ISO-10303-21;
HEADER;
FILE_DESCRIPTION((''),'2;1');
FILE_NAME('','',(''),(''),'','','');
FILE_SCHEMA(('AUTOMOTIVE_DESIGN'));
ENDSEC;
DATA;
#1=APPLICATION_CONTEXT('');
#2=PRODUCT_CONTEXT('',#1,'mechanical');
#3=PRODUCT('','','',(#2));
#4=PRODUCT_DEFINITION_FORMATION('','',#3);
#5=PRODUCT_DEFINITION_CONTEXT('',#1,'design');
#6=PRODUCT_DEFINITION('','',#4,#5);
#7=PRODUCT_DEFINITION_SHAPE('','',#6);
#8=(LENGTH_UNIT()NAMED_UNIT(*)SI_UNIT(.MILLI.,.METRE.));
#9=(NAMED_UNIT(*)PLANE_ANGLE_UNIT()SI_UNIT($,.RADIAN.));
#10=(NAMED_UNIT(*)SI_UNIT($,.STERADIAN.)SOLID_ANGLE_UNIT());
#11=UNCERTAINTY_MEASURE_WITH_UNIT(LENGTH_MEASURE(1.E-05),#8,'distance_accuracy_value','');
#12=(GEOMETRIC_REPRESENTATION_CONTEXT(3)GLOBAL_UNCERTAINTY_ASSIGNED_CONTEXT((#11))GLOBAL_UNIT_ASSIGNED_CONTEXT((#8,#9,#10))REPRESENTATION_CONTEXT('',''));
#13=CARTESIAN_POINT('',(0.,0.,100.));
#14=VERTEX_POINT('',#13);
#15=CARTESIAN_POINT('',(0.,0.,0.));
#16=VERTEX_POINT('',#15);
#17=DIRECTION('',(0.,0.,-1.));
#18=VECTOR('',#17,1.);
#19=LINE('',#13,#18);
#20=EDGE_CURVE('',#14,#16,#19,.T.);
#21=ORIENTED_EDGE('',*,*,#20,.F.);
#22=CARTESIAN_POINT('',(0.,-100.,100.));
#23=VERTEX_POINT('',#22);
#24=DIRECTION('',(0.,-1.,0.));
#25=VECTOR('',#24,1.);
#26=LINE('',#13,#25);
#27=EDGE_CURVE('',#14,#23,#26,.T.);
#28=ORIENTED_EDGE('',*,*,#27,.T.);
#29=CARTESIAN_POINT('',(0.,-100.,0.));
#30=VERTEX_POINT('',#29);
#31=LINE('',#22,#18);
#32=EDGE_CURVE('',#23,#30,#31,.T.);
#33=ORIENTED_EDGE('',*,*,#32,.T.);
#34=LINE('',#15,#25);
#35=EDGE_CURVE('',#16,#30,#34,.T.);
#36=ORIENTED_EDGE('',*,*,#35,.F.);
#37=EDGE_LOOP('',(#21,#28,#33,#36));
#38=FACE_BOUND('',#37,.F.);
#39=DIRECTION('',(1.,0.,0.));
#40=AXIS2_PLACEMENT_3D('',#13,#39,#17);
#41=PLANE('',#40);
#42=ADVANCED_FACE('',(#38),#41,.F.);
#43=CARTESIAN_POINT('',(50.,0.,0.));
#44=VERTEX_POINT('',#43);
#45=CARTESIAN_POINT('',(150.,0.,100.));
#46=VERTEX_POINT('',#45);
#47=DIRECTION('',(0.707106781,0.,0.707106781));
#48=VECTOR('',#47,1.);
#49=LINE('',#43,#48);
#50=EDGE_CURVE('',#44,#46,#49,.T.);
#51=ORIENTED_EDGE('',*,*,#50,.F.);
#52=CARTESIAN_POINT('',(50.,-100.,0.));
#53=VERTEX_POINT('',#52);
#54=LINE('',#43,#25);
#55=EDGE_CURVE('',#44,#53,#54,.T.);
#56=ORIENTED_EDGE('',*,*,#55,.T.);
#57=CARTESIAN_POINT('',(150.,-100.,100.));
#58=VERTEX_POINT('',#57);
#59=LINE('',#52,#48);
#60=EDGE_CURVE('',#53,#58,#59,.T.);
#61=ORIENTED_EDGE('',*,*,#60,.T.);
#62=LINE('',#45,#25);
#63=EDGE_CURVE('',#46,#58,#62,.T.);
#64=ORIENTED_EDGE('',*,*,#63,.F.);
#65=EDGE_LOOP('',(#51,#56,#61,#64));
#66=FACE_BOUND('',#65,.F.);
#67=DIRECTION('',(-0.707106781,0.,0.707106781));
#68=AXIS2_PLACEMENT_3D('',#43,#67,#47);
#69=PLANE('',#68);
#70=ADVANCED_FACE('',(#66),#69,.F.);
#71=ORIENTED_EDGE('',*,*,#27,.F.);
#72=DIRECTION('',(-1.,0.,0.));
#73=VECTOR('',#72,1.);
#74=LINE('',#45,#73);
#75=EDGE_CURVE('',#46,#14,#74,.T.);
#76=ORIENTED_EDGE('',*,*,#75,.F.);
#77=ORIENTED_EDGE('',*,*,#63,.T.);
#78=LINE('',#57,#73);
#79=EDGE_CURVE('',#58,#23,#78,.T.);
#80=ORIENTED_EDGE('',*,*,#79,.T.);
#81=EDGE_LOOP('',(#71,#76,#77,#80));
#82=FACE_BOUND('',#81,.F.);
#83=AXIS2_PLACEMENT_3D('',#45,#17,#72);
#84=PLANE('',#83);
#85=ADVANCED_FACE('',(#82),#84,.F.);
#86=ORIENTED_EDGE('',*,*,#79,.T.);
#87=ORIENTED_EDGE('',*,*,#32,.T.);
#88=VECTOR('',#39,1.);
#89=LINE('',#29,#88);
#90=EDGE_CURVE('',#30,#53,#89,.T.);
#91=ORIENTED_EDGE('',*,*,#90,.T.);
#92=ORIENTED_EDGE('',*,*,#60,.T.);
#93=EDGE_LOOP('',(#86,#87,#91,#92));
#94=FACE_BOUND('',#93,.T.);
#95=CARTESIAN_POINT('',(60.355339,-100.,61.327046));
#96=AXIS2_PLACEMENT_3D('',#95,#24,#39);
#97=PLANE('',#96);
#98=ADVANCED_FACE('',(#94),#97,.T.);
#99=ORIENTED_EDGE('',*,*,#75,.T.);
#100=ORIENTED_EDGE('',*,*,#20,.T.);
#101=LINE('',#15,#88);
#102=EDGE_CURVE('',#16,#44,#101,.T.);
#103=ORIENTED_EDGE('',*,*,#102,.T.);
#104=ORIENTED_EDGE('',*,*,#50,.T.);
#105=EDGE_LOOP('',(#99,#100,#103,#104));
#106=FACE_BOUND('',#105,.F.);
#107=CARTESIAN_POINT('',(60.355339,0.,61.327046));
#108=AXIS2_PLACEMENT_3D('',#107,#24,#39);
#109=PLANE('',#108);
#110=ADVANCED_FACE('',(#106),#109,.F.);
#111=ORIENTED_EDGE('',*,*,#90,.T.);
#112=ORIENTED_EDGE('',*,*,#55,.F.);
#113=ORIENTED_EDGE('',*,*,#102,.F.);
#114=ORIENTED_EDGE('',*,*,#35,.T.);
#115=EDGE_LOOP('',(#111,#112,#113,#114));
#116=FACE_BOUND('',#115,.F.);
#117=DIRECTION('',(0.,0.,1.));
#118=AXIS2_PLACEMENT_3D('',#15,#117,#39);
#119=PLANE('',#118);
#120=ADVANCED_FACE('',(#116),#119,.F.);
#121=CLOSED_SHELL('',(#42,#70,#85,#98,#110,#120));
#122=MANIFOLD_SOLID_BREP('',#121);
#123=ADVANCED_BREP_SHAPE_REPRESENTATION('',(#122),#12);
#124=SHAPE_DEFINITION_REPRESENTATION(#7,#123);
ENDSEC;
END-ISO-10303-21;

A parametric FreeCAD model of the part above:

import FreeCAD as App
import Part
import Sketcher
from FreeCAD import Vector
Q = App.Units.Quantity

doc = App.newDocument("Part")
body = doc.addObject("PartDesign::Body", "Body")

sketch1 = body.newObject("Sketcher::SketchObject", "Sketch")
sketch1.AttachmentSupport = (doc.getObject("XZ_Plane"), [""])
sketch1.MapMode = "FlatFace"
sketch1.addGeometry(Part.LineSegment(Vector(0, 100, 0), Vector(0, 0, 0)), False)
sketch1.addGeometry(Part.LineSegment(Vector(0, 0, 0), Vector(50, 0, 0)), False)
sketch1.addGeometry(Part.LineSegment(Vector(50, 0, 0), Vector(150, 100, 0)), False)
sketch1.addGeometry(Part.LineSegment(Vector(150, 100, 0), Vector(0, 100, 0)), False)
sketch1.addConstraint(Sketcher.Constraint("Coincident", 0, 2, 1, 1))
sketch1.addConstraint(Sketcher.Constraint("Coincident", 1, 2, 2, 1))
sketch1.addConstraint(Sketcher.Constraint("Coincident", 2, 2, 3, 1))
sketch1.addConstraint(Sketcher.Constraint("Coincident", 3, 2, 0, 1))
sketch1.addConstraint(Sketcher.Constraint("Vertical", 0))
sketch1.addConstraint(Sketcher.Constraint("Horizontal", 1))
sketch1.addConstraint(Sketcher.Constraint("Horizontal", 3))
sketch1.addConstraint(Sketcher.Constraint("Coincident", 0, 2, -1, 1))
sketch1.addConstraint(Sketcher.Constraint("DistanceX", 1, 1, 1, 2, Q("50 mm")))
sketch1.addConstraint(Sketcher.Constraint("DistanceX", 3, 2, 3, 1, Q("150 mm")))
sketch1.addConstraint(Sketcher.Constraint("DistanceY", 0, 2, 0, 1, Q("100 mm")))
pad1 = body.newObject("PartDesign::Pad", "Pad")
pad1.Profile = sketch1
pad1.Length = 100

doc.recompute()
